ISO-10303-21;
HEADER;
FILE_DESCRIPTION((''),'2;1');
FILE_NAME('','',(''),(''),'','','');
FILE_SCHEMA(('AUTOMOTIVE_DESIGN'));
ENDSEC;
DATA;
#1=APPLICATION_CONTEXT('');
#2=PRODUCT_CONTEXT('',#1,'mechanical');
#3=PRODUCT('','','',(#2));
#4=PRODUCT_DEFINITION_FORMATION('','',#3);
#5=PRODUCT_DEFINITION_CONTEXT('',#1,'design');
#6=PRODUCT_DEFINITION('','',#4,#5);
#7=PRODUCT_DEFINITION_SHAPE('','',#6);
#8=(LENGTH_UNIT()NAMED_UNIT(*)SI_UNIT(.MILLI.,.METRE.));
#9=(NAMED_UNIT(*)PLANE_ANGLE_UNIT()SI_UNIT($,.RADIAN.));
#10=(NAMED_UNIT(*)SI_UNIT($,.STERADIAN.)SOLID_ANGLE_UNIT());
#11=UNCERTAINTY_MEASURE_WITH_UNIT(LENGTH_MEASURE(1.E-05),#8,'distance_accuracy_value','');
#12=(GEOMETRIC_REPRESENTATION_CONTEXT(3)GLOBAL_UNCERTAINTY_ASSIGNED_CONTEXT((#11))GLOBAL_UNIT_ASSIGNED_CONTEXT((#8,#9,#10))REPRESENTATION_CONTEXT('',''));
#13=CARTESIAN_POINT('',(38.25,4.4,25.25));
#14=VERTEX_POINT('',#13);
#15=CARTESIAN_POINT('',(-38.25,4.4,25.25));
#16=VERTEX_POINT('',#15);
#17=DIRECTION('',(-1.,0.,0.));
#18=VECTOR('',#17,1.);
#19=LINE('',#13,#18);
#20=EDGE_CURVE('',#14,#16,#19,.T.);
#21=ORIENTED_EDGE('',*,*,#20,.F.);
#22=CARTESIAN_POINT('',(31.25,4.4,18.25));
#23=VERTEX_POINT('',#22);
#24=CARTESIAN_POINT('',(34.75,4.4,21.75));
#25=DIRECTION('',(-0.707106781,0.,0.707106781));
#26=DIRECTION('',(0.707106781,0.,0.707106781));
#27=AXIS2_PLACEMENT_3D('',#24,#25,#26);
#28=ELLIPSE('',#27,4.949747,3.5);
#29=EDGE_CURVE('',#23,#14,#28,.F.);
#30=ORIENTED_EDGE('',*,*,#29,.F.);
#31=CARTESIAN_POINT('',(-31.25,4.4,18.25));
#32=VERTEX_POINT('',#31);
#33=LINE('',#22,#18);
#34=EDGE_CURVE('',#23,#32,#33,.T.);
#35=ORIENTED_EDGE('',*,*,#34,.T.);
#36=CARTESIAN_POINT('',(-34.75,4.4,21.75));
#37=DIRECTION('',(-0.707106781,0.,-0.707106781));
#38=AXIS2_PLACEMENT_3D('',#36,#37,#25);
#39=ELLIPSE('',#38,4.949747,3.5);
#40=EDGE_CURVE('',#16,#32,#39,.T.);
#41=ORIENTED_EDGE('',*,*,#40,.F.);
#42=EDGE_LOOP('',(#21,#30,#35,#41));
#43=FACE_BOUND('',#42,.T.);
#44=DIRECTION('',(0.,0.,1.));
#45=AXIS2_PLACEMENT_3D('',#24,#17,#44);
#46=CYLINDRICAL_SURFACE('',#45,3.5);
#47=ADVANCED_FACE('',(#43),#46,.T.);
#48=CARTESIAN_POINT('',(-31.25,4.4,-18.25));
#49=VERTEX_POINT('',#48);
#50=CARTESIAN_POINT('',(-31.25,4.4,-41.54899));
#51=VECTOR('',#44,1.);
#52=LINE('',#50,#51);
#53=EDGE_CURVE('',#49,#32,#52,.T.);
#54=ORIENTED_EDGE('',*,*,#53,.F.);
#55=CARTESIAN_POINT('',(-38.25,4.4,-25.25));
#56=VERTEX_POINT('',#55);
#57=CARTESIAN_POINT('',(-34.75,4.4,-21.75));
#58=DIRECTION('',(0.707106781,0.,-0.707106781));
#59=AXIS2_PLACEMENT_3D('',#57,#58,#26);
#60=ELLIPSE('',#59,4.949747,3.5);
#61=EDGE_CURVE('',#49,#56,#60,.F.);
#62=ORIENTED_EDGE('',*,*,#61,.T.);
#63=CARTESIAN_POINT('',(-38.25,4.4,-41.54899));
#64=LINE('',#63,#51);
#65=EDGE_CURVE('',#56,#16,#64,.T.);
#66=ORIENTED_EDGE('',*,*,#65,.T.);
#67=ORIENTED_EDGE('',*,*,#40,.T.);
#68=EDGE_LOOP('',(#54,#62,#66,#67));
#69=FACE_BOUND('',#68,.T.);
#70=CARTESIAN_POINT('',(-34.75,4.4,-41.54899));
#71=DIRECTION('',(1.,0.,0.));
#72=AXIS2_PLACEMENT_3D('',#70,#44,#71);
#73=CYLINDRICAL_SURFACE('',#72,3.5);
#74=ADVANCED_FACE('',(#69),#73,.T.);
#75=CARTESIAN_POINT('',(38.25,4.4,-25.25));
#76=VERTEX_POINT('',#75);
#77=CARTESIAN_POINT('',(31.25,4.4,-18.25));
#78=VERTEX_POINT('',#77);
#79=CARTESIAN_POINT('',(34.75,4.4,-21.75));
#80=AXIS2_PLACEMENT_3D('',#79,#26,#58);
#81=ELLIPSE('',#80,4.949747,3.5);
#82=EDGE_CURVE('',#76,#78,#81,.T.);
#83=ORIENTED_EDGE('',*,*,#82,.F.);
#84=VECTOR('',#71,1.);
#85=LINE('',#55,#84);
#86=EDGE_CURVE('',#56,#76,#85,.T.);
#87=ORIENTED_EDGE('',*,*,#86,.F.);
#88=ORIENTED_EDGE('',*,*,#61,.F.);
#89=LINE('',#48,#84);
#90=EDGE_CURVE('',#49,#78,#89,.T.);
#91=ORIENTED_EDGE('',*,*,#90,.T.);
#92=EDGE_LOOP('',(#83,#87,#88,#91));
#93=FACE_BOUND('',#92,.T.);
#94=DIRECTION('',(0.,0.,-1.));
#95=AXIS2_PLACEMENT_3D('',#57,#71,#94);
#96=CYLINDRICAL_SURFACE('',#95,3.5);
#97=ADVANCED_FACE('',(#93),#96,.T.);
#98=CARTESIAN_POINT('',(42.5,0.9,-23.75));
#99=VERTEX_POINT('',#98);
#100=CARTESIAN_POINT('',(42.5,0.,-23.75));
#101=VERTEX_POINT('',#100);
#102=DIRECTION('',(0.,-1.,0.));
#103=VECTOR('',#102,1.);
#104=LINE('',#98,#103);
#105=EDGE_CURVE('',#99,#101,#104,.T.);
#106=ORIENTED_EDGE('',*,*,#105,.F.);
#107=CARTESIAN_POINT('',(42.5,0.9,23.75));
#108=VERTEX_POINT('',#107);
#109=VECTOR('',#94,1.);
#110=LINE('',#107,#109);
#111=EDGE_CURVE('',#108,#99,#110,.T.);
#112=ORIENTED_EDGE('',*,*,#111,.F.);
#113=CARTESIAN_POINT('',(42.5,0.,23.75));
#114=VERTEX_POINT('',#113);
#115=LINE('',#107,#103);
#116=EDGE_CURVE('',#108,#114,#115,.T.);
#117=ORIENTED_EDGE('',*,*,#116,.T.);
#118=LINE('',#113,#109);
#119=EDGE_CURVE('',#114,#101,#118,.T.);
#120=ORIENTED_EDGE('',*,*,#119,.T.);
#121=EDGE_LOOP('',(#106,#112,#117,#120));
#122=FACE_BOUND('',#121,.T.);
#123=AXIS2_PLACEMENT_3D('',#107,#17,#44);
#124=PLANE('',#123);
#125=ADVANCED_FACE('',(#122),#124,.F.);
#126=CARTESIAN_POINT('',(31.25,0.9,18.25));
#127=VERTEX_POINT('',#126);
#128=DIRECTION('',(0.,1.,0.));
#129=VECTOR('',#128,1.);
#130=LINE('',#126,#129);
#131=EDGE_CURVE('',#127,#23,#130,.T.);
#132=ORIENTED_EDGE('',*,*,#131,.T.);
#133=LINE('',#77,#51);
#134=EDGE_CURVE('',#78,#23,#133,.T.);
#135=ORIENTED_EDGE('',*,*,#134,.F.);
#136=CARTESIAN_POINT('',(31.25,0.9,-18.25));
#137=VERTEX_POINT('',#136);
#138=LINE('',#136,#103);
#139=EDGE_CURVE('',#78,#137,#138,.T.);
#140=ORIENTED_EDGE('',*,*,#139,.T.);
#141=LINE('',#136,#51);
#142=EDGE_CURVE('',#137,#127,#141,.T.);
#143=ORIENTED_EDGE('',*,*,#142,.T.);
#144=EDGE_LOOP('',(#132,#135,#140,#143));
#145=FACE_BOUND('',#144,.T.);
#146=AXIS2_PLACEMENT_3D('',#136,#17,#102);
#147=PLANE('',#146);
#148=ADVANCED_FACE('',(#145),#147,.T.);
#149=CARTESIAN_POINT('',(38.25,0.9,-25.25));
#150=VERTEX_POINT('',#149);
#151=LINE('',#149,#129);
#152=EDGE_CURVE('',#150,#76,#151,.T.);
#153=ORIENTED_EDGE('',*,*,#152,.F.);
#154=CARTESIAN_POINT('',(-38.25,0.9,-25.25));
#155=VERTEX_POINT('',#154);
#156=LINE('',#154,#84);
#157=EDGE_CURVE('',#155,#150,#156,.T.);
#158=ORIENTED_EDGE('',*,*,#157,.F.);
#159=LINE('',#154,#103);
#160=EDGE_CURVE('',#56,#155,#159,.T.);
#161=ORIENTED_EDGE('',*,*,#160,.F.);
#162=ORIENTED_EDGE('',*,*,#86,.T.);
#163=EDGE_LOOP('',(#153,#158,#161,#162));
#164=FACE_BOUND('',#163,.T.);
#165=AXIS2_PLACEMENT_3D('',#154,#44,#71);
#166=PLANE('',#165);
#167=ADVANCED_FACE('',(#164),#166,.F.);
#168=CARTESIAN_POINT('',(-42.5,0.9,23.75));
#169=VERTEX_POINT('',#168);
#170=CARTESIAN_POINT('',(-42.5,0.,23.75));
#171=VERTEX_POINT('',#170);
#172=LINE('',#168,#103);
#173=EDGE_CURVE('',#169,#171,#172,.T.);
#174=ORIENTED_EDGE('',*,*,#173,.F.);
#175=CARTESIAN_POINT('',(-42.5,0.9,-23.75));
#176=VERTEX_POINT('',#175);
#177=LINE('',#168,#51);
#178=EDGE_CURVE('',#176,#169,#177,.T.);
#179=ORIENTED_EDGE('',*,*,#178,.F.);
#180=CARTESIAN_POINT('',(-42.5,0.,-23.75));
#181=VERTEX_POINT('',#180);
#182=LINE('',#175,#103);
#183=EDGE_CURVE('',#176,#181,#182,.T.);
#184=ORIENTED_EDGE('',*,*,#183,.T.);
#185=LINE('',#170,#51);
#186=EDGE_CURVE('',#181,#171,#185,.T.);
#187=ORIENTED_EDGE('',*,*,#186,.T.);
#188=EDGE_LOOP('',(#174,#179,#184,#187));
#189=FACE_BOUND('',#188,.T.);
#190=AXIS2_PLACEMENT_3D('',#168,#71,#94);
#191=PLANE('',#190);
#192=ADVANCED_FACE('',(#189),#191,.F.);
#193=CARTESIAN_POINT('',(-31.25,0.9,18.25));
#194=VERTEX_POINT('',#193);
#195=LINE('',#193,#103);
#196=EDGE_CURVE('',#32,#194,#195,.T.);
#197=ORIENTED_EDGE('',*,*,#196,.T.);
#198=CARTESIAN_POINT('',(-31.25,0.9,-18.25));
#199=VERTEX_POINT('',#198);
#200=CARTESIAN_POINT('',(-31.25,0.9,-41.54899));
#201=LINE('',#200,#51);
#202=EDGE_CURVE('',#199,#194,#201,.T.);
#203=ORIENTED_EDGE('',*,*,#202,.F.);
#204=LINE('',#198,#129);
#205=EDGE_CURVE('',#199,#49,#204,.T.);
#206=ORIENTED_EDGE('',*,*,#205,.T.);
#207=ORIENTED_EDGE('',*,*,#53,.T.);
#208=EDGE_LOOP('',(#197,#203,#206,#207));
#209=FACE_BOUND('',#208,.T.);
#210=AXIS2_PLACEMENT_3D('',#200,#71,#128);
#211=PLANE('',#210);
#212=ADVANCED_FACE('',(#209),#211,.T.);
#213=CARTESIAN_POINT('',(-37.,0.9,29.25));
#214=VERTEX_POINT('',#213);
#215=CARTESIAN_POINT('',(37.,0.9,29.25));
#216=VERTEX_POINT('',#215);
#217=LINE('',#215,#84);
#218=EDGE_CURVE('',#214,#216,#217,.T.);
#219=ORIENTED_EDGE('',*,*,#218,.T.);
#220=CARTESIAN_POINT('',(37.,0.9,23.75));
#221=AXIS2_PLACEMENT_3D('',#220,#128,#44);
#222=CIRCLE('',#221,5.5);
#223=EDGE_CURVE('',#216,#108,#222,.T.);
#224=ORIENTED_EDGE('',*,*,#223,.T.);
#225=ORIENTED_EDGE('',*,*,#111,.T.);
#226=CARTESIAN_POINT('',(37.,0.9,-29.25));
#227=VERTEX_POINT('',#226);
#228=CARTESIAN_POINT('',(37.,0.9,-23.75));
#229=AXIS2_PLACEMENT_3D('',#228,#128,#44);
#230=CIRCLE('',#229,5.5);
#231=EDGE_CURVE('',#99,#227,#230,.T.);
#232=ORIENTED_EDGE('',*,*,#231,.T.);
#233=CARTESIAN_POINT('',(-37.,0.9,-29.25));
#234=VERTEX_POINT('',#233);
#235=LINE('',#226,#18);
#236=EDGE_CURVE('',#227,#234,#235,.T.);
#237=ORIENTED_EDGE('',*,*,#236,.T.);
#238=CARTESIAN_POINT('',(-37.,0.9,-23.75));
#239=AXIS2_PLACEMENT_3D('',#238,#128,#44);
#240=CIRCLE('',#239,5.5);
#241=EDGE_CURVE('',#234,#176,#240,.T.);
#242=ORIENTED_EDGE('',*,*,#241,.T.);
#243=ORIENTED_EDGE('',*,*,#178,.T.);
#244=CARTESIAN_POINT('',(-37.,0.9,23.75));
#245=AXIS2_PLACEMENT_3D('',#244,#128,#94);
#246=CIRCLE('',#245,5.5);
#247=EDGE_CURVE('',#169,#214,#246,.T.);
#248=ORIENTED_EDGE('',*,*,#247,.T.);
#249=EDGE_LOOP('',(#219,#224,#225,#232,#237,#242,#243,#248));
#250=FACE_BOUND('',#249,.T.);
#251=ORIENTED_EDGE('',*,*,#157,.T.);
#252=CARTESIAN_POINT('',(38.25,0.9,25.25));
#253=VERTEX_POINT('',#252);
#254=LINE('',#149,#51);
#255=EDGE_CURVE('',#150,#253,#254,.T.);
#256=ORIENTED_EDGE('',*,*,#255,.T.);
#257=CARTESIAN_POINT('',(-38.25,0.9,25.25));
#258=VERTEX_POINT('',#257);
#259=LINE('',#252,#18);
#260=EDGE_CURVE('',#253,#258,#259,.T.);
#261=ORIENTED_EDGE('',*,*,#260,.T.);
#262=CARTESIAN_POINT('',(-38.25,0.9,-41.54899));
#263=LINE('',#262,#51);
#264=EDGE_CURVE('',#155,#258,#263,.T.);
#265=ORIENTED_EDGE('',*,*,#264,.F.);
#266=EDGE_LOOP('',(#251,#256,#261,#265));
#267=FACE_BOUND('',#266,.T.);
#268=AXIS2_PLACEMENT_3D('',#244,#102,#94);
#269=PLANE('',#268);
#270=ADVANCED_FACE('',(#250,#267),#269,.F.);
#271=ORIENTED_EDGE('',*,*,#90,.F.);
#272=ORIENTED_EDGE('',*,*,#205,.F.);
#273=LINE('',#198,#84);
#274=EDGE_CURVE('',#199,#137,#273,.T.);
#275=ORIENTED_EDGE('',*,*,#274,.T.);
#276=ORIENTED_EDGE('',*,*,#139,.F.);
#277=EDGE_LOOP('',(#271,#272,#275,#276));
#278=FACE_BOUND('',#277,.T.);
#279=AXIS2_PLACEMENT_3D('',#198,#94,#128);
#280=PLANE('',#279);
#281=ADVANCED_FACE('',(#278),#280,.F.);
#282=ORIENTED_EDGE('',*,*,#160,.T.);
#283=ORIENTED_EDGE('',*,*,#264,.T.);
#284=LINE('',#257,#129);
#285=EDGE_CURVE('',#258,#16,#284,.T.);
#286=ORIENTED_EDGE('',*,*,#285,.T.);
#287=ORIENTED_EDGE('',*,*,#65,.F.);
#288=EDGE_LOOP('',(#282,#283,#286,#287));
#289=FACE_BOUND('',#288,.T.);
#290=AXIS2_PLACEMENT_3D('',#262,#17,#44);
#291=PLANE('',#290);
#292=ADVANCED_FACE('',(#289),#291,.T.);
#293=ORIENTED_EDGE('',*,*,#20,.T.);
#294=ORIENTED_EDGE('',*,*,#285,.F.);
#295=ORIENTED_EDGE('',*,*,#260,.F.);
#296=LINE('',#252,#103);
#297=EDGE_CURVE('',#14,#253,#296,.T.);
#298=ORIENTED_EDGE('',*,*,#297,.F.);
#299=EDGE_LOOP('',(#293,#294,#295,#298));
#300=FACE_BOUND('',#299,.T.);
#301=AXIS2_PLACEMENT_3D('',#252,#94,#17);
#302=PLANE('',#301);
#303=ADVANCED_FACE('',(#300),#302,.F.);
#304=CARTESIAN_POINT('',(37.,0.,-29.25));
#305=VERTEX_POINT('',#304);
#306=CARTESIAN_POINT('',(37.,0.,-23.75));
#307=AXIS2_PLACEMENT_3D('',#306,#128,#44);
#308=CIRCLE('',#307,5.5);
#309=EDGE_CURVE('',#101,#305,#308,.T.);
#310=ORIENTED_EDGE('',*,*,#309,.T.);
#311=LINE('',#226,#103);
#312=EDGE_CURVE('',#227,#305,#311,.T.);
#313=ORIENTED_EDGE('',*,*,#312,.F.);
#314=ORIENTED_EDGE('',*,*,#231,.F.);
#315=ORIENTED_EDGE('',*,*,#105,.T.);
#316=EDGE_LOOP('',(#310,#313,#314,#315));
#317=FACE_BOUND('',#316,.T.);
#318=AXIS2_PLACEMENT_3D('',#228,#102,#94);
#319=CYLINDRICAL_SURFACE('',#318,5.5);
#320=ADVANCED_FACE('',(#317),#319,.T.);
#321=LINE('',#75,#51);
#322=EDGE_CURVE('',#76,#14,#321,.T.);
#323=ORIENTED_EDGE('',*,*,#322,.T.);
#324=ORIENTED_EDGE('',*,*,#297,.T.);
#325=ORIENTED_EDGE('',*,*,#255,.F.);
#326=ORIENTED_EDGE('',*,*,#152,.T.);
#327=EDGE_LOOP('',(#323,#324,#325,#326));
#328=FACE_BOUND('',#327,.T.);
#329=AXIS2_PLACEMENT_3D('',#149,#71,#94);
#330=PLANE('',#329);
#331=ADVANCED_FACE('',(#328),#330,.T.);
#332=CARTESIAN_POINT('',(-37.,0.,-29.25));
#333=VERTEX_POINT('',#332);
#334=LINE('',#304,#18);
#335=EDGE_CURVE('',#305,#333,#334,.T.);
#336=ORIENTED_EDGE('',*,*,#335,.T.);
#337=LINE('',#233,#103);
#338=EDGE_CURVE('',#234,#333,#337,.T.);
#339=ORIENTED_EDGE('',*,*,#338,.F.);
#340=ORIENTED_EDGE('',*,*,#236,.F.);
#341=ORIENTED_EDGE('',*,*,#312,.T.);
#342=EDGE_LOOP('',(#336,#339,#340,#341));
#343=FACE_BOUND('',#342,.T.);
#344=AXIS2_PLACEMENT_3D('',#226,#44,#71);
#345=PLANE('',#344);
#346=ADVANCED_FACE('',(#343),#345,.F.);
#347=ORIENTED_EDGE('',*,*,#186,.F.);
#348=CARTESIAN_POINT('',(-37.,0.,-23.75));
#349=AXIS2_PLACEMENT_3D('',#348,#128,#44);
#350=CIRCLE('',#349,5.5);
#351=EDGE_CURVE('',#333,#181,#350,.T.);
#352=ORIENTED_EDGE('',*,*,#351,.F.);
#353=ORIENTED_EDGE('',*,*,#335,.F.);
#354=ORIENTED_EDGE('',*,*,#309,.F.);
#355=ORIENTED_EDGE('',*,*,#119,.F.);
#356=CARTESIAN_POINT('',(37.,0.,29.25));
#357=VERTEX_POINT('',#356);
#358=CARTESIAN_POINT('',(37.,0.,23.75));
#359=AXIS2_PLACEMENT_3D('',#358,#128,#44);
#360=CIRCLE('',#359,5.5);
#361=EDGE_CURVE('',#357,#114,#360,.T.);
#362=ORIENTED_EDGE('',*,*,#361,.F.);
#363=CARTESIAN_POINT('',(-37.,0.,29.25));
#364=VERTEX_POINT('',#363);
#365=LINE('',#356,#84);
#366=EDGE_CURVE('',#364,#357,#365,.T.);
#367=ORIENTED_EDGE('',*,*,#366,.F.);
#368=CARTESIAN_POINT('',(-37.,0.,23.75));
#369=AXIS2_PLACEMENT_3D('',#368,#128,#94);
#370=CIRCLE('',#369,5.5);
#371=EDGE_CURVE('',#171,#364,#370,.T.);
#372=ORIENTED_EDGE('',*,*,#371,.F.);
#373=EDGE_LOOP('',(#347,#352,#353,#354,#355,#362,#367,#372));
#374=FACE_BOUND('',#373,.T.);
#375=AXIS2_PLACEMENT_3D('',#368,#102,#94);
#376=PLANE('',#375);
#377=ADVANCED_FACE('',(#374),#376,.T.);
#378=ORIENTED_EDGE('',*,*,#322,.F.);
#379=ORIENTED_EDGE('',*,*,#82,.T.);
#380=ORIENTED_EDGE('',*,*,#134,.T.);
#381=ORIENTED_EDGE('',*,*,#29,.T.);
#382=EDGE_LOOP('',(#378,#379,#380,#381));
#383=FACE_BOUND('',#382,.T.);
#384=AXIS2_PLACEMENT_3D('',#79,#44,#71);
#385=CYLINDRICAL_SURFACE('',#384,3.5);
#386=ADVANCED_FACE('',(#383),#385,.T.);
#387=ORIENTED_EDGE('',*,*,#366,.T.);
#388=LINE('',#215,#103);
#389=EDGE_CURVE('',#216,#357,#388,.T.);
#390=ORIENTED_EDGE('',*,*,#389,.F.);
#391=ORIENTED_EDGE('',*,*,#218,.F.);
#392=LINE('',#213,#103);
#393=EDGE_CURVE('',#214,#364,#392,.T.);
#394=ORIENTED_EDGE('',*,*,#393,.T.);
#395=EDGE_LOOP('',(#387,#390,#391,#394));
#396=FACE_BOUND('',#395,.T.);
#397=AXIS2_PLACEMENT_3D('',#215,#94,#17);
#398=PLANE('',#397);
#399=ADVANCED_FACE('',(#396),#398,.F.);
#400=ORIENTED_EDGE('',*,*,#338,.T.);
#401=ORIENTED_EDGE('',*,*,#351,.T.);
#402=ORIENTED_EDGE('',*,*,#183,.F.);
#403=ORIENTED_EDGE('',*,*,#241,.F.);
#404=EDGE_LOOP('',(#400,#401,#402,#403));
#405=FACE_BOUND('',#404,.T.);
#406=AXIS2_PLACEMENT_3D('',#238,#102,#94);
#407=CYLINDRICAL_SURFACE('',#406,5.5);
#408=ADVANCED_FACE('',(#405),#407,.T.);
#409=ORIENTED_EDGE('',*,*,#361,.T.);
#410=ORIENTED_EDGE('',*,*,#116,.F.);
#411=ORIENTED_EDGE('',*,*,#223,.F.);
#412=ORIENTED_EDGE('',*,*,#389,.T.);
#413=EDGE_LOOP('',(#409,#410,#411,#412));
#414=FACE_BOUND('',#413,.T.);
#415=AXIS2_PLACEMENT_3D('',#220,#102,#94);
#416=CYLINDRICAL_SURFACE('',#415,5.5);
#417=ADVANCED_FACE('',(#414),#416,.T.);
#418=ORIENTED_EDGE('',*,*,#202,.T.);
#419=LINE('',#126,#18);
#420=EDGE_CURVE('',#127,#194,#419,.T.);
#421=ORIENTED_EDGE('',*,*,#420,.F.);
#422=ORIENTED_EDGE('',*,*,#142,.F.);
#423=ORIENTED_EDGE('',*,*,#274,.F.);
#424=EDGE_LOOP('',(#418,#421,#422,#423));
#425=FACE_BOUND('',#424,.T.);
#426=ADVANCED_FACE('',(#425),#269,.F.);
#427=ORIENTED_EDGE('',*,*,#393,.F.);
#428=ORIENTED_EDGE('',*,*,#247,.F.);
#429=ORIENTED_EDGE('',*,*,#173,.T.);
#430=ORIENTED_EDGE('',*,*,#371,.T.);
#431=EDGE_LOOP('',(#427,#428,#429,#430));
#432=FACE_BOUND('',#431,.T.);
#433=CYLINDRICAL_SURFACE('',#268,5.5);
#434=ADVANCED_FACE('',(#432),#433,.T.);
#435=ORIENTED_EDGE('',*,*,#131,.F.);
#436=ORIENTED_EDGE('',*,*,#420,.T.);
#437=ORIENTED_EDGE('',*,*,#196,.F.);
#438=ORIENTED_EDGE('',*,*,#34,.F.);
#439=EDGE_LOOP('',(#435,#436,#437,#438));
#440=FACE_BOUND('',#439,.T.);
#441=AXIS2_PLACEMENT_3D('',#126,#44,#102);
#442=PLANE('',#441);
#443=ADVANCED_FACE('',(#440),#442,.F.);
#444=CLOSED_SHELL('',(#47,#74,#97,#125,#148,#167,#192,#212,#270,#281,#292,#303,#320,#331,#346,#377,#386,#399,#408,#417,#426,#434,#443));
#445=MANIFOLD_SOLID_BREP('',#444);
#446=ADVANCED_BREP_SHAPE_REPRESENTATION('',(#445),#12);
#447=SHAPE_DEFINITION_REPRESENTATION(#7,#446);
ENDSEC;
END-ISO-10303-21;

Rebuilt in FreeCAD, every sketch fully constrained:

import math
import FreeCAD as App
import Part
import Sketcher

V = App.Vector
Q = App.Units.Quantity


def add_polygon(sketch, points):
    """Adds a closed chain of lines whose ends are joined by coincident constraints."""
    first, n = sketch.GeometryCount, len(points)
    for a, b in zip(points, points[1:] + points[:1]):
        sketch.addGeometry(Part.LineSegment(App.Vector(*a, 0), App.Vector(*b, 0)), False)
    for i in range(n):
        sketch.addConstraint(Sketcher.Constraint("Coincident", first + i, 2, first + (i + 1) % n, 1))

doc = App.newDocument("Part")
body = doc.addObject("PartDesign::Body", "Body")

sketch1 = body.newObject("Sketcher::SketchObject", "Sketch")
sketch1.AttachmentSupport = (doc.getObject("XZ_Plane"), [""])
sketch1.MapMode = "FlatFace"
sketch1.addGeometry(Part.LineSegment(V(-37, 29.25, 0), V(37, 29.25, 0)), False)
sketch1.addGeometry(Part.ArcOfCircle(Part.Circle(V(37, 23.75, 0), V(0, 0, 1), 5.5), math.radians(0), math.radians(90)), False)
sketch1.addGeometry(Part.LineSegment(V(42.5, 23.75, 0), V(42.5, -23.75, 0)), False)
sketch1.addGeometry(Part.ArcOfCircle(Part.Circle(V(37, -23.75, 0), V(0, 0, 1), 5.5), math.radians(-90), math.radians(0)), False)
sketch1.addGeometry(Part.LineSegment(V(37, -29.25, 0), V(-37, -29.25, 0)), False)
sketch1.addGeometry(Part.ArcOfCircle(Part.Circle(V(-37, -23.75, 0), V(0, 0, 1), 5.5), math.radians(180), math.radians(270)), False)
sketch1.addGeometry(Part.LineSegment(V(-42.5, -23.75, 0), V(-42.5, 23.75, 0)), False)
sketch1.addGeometry(Part.ArcOfCircle(Part.Circle(V(-37, 23.75, 0), V(0, 0, 1), 5.5), math.radians(90), math.radians(180)), False)
sketch1.addConstraint(Sketcher.Constraint("Tangent", 0, 2, 1, 2))
sketch1.addConstraint(Sketcher.Constraint("Tangent", 1, 1, 2, 1))
sketch1.addConstraint(Sketcher.Constraint("Tangent", 2, 2, 3, 2))
sketch1.addConstraint(Sketcher.Constraint("Tangent", 3, 1, 4, 1))
sketch1.addConstraint(Sketcher.Constraint("Tangent", 4, 2, 5, 2))
sketch1.addConstraint(Sketcher.Constraint("Tangent", 5, 1, 6, 1))
sketch1.addConstraint(Sketcher.Constraint("Tangent", 6, 2, 7, 2))
sketch1.addConstraint(Sketcher.Constraint("Tangent", 7, 1, 0, 1))
sketch1.addConstraint(Sketcher.Constraint("Horizontal", 0))
sketch1.addConstraint(Sketcher.Constraint("Vertical", 2))
sketch1.addConstraint(Sketcher.Constraint("Horizontal", 4))
sketch1.addConstraint(Sketcher.Constraint("Vertical", 6))
sketch1.addConstraint(Sketcher.Constraint("Equal", 1, 3))
sketch1.addConstraint(Sketcher.Constraint("Equal", 3, 5))
sketch1.addConstraint(Sketcher.Constraint("Equal", 5, 7))
sketch1.addConstraint(Sketcher.Constraint("Symmetric", 1, 3, 5, 3, -1, 1))
sketch1.addConstraint(Sketcher.Constraint("Radius", 1, Q("5.5 mm")))
sketch1.addConstraint(Sketcher.Constraint("DistanceX", 0, 1, 0, 2, Q("74 mm")))
sketch1.addConstraint(Sketcher.Constraint("DistanceY", 2, 2, 2, 1, Q("47.5 mm")))
pad1 = body.newObject("PartDesign::Pad", "Pad")
pad1.Profile = sketch1
pad1.Length = 0.9
pad1.Reversed = True

sketch2 = body.newObject("Sketcher::SketchObject", "Sketch001")
sketch2.AttachmentSupport = (doc.getObject("XY_Plane"), [""])
sketch2.MapMode = "FlatFace"
sketch2.addGeometry(Part.LineSegment(V(-38.25, 0.9, 0), V(-31.25, 0.9, 0)), False)
sketch2.addGeometry(Part.LineSegment(V(-31.25, 0.9, 0), V(-31.25, 4.4, 0)), False)
sketch2.addGeometry(Part.ArcOfCircle(Part.Circle(V(-34.75, 4.4, 0), V(0, 0, 1), 3.5), math.radians(0), math.radians(180)), False)
sketch2.addGeometry(Part.LineSegment(V(-38.25, 4.4, 0), V(-38.25, 0.9, 0)), False)
sketch2.addConstraint(Sketcher.Constraint("Coincident", 0, 2, 1, 1))
sketch2.addConstraint(Sketcher.Constraint("Tangent", 1, 2, 2, 1))
sketch2.addConstraint(Sketcher.Constraint("Tangent", 2, 2, 3, 1))
sketch2.addConstraint(Sketcher.Constraint("Coincident", 3, 2, 0, 1))
sketch2.addConstraint(Sketcher.Constraint("Horizontal", 0))
sketch2.addConstraint(Sketcher.Constraint("Vertical", 1))
sketch2.addConstraint(Sketcher.Constraint("Vertical", 3))
sketch2.addConstraint(Sketcher.Constraint("Radius", 2, Q("3.5 mm")))
sketch2.addConstraint(Sketcher.Constraint("DistanceY", 1, 1, 1, 2, Q("3.5 mm")))
sketch2.addConstraint(Sketcher.Constraint("DistanceY", -1, 1, 2, 3, Q("4.4 mm")))
sketch2.addConstraint(Sketcher.Constraint("DistanceX", 2, 3, -1, 1, Q("34.75 mm")))

sketch3 = body.newObject("Sketcher::SketchObject", "Sketch002")
sketch3.AttachmentSupport = (doc.getObject("XZ_Plane"), [""])
sketch3.MapMode = "FlatFace"
sketch3.AttachmentOffset = App.Placement(V(0, 0, -0.9), App.Rotation())
add_polygon(sketch3, [(34.75, 21.75), (-34.75, 21.75), (-34.75, -21.75), (34.75, -21.75)])
sketch3.addConstraint(Sketcher.Constraint("Horizontal", 0))
sketch3.addConstraint(Sketcher.Constraint("Vertical", 1))
sketch3.addConstraint(Sketcher.Constraint("Horizontal", 2))
sketch3.addConstraint(Sketcher.Constraint("Vertical", 3))
sketch3.addConstraint(Sketcher.Constraint("Symmetric", 0, 2, 2, 2, -1, 1))
sketch3.addConstraint(Sketcher.Constraint("DistanceX", 0, 2, 0, 1, Q("69.5 mm")))
sketch3.addConstraint(Sketcher.Constraint("DistanceY", 1, 2, 1, 1, Q("43.5 mm")))
doc.recompute()

additivepipe = body.newObject("PartDesign::AdditivePipe", "AdditivePipe")
additivepipe.Profile = sketch2
additivepipe.Spine = (sketch3, ["Edge1", "Edge2", "Edge3", "Edge4"])
additivepipe.Transition = "Right corner"

doc.recompute()
